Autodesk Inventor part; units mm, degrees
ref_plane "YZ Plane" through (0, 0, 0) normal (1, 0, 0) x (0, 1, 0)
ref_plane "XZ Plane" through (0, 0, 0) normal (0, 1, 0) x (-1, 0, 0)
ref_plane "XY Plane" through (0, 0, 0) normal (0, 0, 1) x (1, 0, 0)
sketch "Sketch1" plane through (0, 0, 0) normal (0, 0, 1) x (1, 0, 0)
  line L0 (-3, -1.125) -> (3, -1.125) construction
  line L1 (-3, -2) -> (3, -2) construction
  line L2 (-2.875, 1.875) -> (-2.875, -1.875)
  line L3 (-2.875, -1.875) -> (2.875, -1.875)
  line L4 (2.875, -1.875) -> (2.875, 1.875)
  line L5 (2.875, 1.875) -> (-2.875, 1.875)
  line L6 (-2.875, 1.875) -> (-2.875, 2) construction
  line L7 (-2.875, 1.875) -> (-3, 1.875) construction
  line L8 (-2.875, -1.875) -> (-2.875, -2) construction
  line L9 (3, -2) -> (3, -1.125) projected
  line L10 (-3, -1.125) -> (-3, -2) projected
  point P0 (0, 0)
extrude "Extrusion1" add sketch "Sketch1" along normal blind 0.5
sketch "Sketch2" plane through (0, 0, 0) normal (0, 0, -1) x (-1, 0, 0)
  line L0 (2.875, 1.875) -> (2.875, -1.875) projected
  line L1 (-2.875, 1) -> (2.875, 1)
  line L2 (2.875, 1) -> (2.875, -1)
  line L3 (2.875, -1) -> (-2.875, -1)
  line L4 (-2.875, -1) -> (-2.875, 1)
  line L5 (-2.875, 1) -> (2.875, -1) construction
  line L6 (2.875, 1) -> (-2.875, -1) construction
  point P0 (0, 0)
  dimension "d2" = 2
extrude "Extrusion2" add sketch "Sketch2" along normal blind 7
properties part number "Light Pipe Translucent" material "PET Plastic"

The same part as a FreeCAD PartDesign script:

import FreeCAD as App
import Part
import Sketcher


def add_polygon(sketch, points):
    """Adds a closed chain of lines whose ends are joined by coincident constraints."""
    first, n = sketch.GeometryCount, len(points)
    for a, b in zip(points, points[1:] + points[:1]):
        sketch.addGeometry(Part.LineSegment(App.Vector(*a, 0), App.Vector(*b, 0)), False)
    for i in range(n):
        sketch.addConstraint(Sketcher.Constraint("Coincident", first + i, 2, first + (i + 1) % n, 1))

doc = App.newDocument("Part")
body = doc.addObject("PartDesign::Body", "Body")

sketch1 = body.newObject("Sketcher::SketchObject", "Sketch")
sketch1.AttachmentSupport = (doc.getObject("XY_Plane"), [""])
sketch1.MapMode = "FlatFace"
add_polygon(sketch1, [(2.875, 1.875), (-2.875, 1.875), (-2.875, -1.875), (2.875, -1.875)])
sketch1.addConstraint([
    Sketcher.Constraint("Horizontal", 0),
    Sketcher.Constraint("Vertical", 1),
    Sketcher.Constraint("Horizontal", 2),
    Sketcher.Constraint("Vertical", 3),
    Sketcher.Constraint("Symmetric", 0, 2, 2, 2, -1, 1),
    Sketcher.Constraint("DistanceX", 0, 2, 0, 1, 5.75),
    Sketcher.Constraint("DistanceY", 1, 2, 1, 1, 3.75),
])
pad1 = body.newObject("PartDesign::Pad", "Pad")
pad1.Profile = sketch1
pad1.Length = 0.5

sketch2 = body.newObject("Sketcher::SketchObject", "Sketch001")
sketch2.AttachmentSupport = (doc.getObject("XY_Plane"), [""])
sketch2.MapMode = "FlatFace"
add_polygon(sketch2, [(-2.875, -1), (-2.875, 1), (2.875, 1), (2.875, -1)])
sketch2.addConstraint([
    Sketcher.Constraint("Vertical", 0),
    Sketcher.Constraint("Horizontal", 1),
    Sketcher.Constraint("Vertical", 2),
    Sketcher.Constraint("Horizontal", 3),
    Sketcher.Constraint("Symmetric", 0, 2, 2, 2, -1, 1),
    Sketcher.Constraint("DistanceY", 0, 1, 0, 2, 2.0),
    Sketcher.Constraint("DistanceX", 1, 1, 1, 2, 5.75),
])
pad2 = body.newObject("PartDesign::Pad", "Pad001")
pad2.Profile = sketch2
pad2.Length = 7
pad2.Reversed = True

doc.recompute()
